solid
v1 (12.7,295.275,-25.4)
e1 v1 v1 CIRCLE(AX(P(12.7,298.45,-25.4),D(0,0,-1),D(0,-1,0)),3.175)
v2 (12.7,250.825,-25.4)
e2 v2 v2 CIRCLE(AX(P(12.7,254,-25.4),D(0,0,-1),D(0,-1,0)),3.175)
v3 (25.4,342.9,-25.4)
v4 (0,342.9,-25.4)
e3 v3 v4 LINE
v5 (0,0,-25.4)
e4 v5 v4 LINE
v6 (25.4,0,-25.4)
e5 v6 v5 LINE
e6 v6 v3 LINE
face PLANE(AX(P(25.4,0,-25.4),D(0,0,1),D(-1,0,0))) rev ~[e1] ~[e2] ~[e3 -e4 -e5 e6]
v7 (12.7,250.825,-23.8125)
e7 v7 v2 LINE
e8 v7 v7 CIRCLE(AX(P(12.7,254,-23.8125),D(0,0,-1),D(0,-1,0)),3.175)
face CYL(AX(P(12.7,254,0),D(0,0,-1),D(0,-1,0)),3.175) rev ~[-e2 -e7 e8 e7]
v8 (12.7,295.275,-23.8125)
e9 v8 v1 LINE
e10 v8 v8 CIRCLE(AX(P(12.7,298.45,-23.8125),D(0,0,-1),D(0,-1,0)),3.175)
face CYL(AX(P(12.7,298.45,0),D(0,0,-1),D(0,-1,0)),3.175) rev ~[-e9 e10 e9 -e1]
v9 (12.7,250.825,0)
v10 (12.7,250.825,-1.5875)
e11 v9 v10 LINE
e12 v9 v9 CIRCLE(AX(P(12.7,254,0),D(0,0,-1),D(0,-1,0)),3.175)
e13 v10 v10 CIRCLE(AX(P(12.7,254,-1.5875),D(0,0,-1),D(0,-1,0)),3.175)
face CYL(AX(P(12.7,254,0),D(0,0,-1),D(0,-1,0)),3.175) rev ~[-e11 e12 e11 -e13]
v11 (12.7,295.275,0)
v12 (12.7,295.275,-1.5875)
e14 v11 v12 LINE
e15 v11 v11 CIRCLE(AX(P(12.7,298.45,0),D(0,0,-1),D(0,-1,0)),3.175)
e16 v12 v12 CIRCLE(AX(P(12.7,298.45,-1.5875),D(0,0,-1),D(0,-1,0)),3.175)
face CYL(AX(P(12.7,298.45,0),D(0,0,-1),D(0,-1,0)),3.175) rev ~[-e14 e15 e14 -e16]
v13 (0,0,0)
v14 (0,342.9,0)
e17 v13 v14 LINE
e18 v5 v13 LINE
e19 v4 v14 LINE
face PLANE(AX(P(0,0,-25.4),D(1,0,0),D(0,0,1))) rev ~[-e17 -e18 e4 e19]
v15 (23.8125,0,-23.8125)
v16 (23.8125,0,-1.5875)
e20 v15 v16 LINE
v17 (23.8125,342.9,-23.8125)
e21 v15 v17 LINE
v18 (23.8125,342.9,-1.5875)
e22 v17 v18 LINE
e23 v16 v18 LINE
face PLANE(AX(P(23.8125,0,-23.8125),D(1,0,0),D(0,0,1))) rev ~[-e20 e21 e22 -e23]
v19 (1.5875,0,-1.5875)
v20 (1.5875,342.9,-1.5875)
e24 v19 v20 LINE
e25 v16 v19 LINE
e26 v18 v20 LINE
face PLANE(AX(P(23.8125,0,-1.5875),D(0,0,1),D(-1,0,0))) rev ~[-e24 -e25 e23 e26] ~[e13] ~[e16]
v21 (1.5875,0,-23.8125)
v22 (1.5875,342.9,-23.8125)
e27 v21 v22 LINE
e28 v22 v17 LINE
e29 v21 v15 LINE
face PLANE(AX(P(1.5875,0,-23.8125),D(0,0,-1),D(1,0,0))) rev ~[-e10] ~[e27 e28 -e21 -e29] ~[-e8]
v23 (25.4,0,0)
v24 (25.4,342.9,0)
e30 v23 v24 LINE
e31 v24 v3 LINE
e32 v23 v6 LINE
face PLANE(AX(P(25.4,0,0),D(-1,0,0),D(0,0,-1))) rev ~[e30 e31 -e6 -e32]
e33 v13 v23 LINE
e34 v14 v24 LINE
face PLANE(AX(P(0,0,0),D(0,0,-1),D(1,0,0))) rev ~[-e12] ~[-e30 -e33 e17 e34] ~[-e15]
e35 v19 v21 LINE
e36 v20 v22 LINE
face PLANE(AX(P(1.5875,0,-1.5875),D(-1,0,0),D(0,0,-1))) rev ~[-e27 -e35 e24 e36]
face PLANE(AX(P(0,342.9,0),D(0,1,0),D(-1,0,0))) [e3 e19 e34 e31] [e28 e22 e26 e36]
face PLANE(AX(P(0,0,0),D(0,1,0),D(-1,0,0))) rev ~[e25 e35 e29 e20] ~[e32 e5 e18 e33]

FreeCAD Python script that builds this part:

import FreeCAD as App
import Part
import Sketcher

V = App.Vector
Q = App.Units.Quantity


def add_polygon(sketch, points):
    """Adds a closed chain of lines whose ends are joined by coincident constraints."""
    first, n = sketch.GeometryCount, len(points)
    for a, b in zip(points, points[1:] + points[:1]):
        sketch.addGeometry(Part.LineSegment(App.Vector(*a, 0), App.Vector(*b, 0)), False)
    for i in range(n):
        sketch.addConstraint(Sketcher.Constraint("Coincident", first + i, 2, first + (i + 1) % n, 1))

doc = App.newDocument("Part")
body = doc.addObject("PartDesign::Body", "Body")

sketch1 = doc.addObject("Sketcher::SketchObject", "Sketch")
body.addObject(sketch1)
sketch1.AttachmentSupport = (doc.XZ_Plane, [""])
sketch1.MapMode = "FlatFace"
add_polygon(sketch1, [(0, -25), (0, 0), (25, 0), (25, -25)])
add_polygon(sketch1, [(2, -2), (2, -24), (24, -24), (24, -2)])
sketch1.addConstraint(Sketcher.Constraint("Vertical", 0))
sketch1.addConstraint(Sketcher.Constraint("Horizontal", 1))
sketch1.addConstraint(Sketcher.Constraint("Vertical", 2))
sketch1.addConstraint(Sketcher.Constraint("Horizontal", 3))
sketch1.addConstraint(Sketcher.Constraint("Vertical", 4))
sketch1.addConstraint(Sketcher.Constraint("Horizontal", 5))
sketch1.addConstraint(Sketcher.Constraint("Vertical", 6))
sketch1.addConstraint(Sketcher.Constraint("Horizontal", 7))
sketch1.addConstraint(Sketcher.Constraint("Coincident", 0, 2, -1, 1))
sketch1.addConstraint(Sketcher.Constraint("Equal", 3, 0))
sketch1.addConstraint(Sketcher.Constraint("Equal", 7, 4))
sketch1.addConstraint(Sketcher.Constraint("DistanceX", 1, 1, 1, 2, Q("1 in")))
sketch1.addConstraint(Sketcher.Constraint("DistanceX", -1, 1, 4, 2, Q("0.0625 in")))
sketch1.addConstraint(Sketcher.Constraint("DistanceY", 6, 2, -1, 1, Q("0.0625 in")))
sketch1.addConstraint(Sketcher.Constraint("DistanceY", 3, 2, 4, 2, Q("0.0625 in")))
pad1 = doc.addObject("PartDesign::Pad", "Pad")
body.addObject(pad1)
pad1.Profile = sketch1
pad1.Length = Q("13.5 in")
pad1.Reversed = True

sketch2 = doc.addObject("Sketcher::SketchObject", "Sketch001")
body.addObject(sketch2)
sketch2.AttachmentSupport = (doc.XY_Plane, [""])
sketch2.MapMode = "FlatFace"
sketch2.addGeometry(Part.Circle(V(12.7, 298.4, 0), V(0, 0, 1), 3.2), False)
sketch2.addConstraint(Sketcher.Constraint("Diameter", 0, Q("0.25 in")))
sketch2.addConstraint(Sketcher.Constraint("DistanceX", -1, 1, 0, 3, Q("0.5 in")))
sketch2.addConstraint(Sketcher.Constraint("DistanceY", -1, 1, 0, 3, Q("11.75 in")))
doc.recompute()
hole = doc.addObject("PartDesign::Hole", "Hole")
body.addObject(hole)
hole.Profile = sketch2
hole.ThreadType = "None"
hole.Diameter = Q("0.25 in")
hole.DepthType = "ThroughAll"

sketch3 = doc.addObject("Sketcher::SketchObject", "Sketch002")
body.addObject(sketch3)
sketch3.AttachmentSupport = (doc.XY_Plane, [""])
sketch3.MapMode = "FlatFace"
sketch3.addGeometry(Part.Circle(V(12.7, 254, 0), V(0, 0, 1), 3.2), False)
sketch3.addConstraint(Sketcher.Constraint("Diameter", 0, Q("0.25 in")))
sketch3.addConstraint(Sketcher.Constraint("DistanceY", -1, 1, 0, 3, Q("10 in")))
sketch3.addConstraint(Sketcher.Constraint("DistanceX", -1, 1, 0, 3, Q("0.5 in")))
doc.recompute()
hole2 = doc.addObject("PartDesign::Hole", "Hole001")
body.addObject(hole2)
hole2.Profile = sketch3
hole2.ThreadType = "None"
hole2.Diameter = Q("0.25 in")
hole2.DepthType = "ThroughAll"

doc.recompute()
